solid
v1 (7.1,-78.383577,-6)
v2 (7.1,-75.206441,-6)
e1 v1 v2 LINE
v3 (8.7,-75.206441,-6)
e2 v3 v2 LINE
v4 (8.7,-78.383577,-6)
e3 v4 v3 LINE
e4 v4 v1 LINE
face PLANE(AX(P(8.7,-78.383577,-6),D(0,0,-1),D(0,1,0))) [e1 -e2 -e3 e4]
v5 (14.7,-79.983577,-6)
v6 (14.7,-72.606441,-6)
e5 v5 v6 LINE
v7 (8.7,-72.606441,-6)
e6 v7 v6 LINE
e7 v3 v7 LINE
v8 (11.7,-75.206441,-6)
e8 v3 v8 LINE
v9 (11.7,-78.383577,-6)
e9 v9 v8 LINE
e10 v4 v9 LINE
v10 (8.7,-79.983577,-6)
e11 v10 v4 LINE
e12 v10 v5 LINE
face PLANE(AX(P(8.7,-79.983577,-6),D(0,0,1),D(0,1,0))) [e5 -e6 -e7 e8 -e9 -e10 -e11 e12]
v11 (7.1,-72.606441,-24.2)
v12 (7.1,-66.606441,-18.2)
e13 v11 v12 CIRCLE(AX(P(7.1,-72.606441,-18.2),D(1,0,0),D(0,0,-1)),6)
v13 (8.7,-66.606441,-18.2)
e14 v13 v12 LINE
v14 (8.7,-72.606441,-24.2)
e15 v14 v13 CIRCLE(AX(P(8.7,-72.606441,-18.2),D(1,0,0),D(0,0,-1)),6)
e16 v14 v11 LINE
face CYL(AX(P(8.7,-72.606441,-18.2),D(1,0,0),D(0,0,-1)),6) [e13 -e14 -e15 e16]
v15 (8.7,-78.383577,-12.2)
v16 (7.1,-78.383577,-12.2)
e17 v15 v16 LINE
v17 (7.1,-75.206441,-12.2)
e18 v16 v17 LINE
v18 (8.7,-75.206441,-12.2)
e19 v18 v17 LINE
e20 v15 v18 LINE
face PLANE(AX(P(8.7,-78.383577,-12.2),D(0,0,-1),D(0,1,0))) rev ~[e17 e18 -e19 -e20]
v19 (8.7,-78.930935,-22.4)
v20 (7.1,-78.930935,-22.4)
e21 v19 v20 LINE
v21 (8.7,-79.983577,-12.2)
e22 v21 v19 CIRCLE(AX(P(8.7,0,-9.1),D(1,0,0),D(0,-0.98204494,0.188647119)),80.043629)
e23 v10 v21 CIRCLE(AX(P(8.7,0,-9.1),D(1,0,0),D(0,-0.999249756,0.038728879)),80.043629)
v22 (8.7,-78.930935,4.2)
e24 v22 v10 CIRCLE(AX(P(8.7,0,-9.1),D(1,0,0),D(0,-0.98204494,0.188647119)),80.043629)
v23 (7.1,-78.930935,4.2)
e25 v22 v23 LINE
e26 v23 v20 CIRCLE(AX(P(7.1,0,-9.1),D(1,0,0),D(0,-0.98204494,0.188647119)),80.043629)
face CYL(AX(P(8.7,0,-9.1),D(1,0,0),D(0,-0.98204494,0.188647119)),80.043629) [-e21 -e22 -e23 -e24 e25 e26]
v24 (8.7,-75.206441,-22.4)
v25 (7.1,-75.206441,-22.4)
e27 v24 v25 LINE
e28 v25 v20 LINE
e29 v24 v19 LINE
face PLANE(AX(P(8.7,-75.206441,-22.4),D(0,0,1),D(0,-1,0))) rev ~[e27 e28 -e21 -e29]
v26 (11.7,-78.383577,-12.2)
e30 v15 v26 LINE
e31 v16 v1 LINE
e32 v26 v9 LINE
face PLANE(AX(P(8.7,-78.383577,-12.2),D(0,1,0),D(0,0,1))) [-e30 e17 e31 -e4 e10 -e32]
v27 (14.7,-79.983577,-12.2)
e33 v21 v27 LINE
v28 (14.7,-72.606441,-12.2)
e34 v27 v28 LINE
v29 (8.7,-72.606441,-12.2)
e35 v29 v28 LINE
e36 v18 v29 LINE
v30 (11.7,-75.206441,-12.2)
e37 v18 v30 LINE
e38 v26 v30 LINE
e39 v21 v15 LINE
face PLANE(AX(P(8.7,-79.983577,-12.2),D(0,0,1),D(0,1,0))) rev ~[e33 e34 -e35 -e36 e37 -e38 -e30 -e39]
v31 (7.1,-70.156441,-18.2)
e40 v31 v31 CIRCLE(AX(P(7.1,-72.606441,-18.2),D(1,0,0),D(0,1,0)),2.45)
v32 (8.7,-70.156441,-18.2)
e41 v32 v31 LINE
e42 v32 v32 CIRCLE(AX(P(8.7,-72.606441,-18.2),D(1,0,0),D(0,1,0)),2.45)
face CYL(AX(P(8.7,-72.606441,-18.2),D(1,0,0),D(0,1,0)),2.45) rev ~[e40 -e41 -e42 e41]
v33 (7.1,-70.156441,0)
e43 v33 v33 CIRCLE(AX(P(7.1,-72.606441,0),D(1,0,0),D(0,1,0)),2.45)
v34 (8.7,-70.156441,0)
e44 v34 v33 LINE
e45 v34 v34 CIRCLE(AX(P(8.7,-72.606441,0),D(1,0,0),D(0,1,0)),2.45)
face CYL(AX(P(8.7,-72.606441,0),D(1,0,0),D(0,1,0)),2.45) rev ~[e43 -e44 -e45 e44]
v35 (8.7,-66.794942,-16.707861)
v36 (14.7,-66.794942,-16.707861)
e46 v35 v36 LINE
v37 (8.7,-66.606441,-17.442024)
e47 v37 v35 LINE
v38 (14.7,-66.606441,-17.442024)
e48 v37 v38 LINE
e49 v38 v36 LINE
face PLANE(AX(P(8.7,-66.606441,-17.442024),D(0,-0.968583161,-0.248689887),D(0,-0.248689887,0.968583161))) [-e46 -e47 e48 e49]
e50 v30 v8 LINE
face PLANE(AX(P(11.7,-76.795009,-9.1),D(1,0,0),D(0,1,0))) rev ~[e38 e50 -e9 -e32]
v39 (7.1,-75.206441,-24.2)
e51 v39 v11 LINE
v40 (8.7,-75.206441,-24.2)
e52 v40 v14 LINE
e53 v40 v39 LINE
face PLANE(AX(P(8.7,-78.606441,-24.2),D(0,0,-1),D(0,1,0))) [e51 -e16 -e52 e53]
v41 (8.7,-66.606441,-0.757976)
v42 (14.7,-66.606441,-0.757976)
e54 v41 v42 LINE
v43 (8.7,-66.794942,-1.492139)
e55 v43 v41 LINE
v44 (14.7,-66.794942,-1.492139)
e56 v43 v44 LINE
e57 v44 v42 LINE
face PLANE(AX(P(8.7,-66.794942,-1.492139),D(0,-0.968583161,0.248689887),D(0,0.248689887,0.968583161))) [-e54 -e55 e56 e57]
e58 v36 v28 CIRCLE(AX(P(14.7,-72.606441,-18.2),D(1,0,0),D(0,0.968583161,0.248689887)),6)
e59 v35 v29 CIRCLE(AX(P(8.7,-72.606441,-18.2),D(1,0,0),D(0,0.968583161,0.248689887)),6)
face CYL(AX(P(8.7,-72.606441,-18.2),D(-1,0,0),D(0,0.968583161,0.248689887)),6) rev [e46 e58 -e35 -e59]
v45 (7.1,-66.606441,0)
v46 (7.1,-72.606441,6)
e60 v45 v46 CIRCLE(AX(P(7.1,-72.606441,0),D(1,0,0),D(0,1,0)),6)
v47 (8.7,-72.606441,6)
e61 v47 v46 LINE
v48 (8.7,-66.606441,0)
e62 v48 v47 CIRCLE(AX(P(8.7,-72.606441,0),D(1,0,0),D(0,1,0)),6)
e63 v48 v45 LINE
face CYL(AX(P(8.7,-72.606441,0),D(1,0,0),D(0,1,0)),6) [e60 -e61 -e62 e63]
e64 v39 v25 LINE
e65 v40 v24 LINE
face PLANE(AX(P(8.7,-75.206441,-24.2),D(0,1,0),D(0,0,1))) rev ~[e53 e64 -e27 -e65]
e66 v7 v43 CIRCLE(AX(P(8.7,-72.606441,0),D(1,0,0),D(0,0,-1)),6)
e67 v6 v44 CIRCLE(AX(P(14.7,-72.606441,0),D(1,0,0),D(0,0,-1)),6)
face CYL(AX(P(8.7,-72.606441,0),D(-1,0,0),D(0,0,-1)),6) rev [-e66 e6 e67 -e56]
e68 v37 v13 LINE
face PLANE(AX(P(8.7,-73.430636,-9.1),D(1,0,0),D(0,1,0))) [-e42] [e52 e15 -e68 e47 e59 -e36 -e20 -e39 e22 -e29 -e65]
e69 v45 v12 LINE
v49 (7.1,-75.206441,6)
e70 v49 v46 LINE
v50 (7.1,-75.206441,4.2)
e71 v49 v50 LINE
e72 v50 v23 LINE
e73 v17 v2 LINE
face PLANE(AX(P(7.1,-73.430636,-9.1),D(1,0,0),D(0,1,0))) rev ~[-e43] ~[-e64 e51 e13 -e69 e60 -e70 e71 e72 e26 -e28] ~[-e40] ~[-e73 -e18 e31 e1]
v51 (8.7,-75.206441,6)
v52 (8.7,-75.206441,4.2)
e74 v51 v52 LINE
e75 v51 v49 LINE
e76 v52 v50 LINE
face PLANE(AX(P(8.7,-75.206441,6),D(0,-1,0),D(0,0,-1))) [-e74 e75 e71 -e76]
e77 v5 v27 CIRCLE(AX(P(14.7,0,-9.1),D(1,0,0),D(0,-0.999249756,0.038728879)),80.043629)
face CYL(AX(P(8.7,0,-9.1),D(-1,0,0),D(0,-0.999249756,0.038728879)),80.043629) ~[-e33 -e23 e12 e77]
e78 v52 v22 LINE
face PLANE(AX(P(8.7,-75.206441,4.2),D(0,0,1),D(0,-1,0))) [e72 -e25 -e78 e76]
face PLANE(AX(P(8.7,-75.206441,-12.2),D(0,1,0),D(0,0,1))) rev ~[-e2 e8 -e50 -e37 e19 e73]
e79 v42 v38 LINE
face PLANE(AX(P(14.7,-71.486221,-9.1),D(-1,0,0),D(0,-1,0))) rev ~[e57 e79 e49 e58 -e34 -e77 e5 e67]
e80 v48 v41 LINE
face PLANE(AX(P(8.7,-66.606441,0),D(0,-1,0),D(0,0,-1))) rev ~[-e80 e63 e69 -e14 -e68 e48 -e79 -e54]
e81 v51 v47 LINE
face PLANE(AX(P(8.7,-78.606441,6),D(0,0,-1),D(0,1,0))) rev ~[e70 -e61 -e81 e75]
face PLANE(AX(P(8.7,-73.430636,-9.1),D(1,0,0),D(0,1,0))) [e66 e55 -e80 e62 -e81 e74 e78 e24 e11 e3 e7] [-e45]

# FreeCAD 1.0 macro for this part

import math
import FreeCAD as App
import Part
import Sketcher
Q = App.Units.Quantity


def add_polygon(sketch, points):
    """Adds a closed chain of lines whose ends are joined by coincident constraints."""
    first, n = sketch.GeometryCount, len(points)
    for a, b in zip(points, points[1:] + points[:1]):
        sketch.addGeometry(Part.LineSegment(App.Vector(*a, 0), App.Vector(*b, 0)), False)
    for i in range(n):
        sketch.addConstraint(Sketcher.Constraint("Coincident", first + i, 2, first + (i + 1) % n, 1))

doc = App.newDocument("Part")
body = doc.addObject("PartDesign::Body", "Body")

sketch1 = doc.addObject("Sketcher::SketchObject", "Sketch")
body.addObject(sketch1)
sketch1.AttachmentSupport = (doc.YZ_Plane, [""])
sketch1.MapMode = "FlatFace"
sketch1.AttachmentOffset = App.Placement(App.Vector(0, 0, 8.7), App.Rotation())
sketch1.addGeometry(Part.ArcOfCircle(Part.Circle(App.Vector(72.6, -9.1, 0), App.Vector(0, 0, 1), 80), math.radians(169), math.radians(191)), False)
sketch1.addGeometry(Part.LineSegment(App.Vector(-6, -24.2, 0), App.Vector(0, -24.2, 0)), False)
sketch1.addGeometry(Part.ArcOfCircle(Part.Circle(App.Vector(0, -18.2, 0), App.Vector(0, 0, 1), 6), math.radians(-90), math.radians(0)), False)
sketch1.addGeometry(Part.LineSegment(App.Vector(6, -18.2, 0), App.Vector(6, 0, 0)), False)
sketch1.addGeometry(Part.ArcOfCircle(Part.Circle(App.Vector(0, 0, 0), App.Vector(0, 0, 1), 6), math.radians(0), math.radians(90)), False)
sketch1.addGeometry(Part.LineSegment(App.Vector(0, 6, 0), App.Vector(-6, 6, 0)), False)
sketch1.addGeometry(Part.Circle(App.Vector(0, -18.2, 0), App.Vector(0, 0, 1), 2.5), False)
sketch1.addGeometry(Part.Circle(App.Vector(0, 0, 0), App.Vector(0, 0, 1), 2.5), False)
sketch1.addConstraint(Sketcher.Constraint("Coincident", 0, 2, 1, 1))
sketch1.addConstraint(Sketcher.Constraint("Tangent", 1, 2, 2, 1))
sketch1.addConstraint(Sketcher.Constraint("Tangent", 2, 2, 3, 1))
sketch1.addConstraint(Sketcher.Constraint("Tangent", 3, 2, 4, 1))
sketch1.addConstraint(Sketcher.Constraint("Tangent", 4, 2, 5, 1))
sketch1.addConstraint(Sketcher.Constraint("Coincident", 5, 2, 0, 1))
sketch1.addConstraint(Sketcher.Constraint("Horizontal", 1))
sketch1.addConstraint(Sketcher.Constraint("Vertical", 3))
sketch1.addConstraint(Sketcher.Constraint("Horizontal", 5))
sketch1.addConstraint(Sketcher.Constraint("Coincident", 4, 3, -1, 1))
sketch1.addConstraint(Sketcher.Constraint("Coincident", 7, 3, -1, 1))
sketch1.addConstraint(Sketcher.Constraint("Coincident", 6, 3, 2, 3))
sketch1.addConstraint(Sketcher.Constraint("Equal", 2, 4))
sketch1.addConstraint(Sketcher.Constraint("Equal", 6, 7))
sketch1.addConstraint(Sketcher.Constraint("Vertical", 0, 2, 5, 2))
sketch1.addConstraint(Sketcher.Constraint("Radius", 2, 6.0))
sketch1.addConstraint(Sketcher.Constraint("Diameter", 6, 4.9))
sketch1.addConstraint(Sketcher.Constraint("DistanceX", 1, 1, 1, 2, 6.0))
sketch1.addConstraint(Sketcher.Constraint("DistanceY", 3, 1, 3, 2, 18.2))
sketch1.addConstraint(Sketcher.Constraint("Radius", 0, 80.043629))
pad1 = doc.addObject("PartDesign::Pad", "Pad")
body.addObject(pad1)
pad1.Profile = sketch1
pad1.Length = 1.6
pad1.Reversed = True

sketch2 = doc.addObject("Sketcher::SketchObject", "Sketch001")
body.addObject(sketch2)
sketch2.AttachmentSupport = (doc.YZ_Plane, [""])
sketch2.MapMode = "FlatFace"
sketch2.AttachmentOffset = App.Placement(App.Vector(0, 0, 8.7), App.Rotation())
sketch2.addGeometry(Part.ArcOfCircle(Part.Circle(App.Vector(0, -18.2, 0), App.Vector(0, 0, 1), 6), math.radians(14), math.radians(90)), False)
sketch2.addGeometry(Part.LineSegment(App.Vector(5.8, -16.7, 0), App.Vector(6, -17.4, 0)), False)
sketch2.addGeometry(Part.LineSegment(App.Vector(6, -17.4, 0), App.Vector(6, -0.8, 0)), False)
sketch2.addGeometry(Part.LineSegment(App.Vector(6, -0.8, 0), App.Vector(5.8, -1.5, 0)), False)
sketch2.addGeometry(Part.ArcOfCircle(Part.Circle(App.Vector(0, 0, 0), App.Vector(0, 0, 1), 6), math.radians(-90), math.radians(-14)), False)
sketch2.addGeometry(Part.LineSegment(App.Vector(0, -6, 0), App.Vector(-7.4, -6, 0)), False)
sketch2.addGeometry(Part.ArcOfCircle(Part.Circle(App.Vector(72.6, -9.1, 0), App.Vector(0, 0, 1), 80), math.radians(177.78), math.radians(182.22)), False)
sketch2.addGeometry(Part.LineSegment(App.Vector(-7.4, -12.2, 0), App.Vector(0, -12.2, 0)), False)
sketch2.addConstraint(Sketcher.Constraint("Tangent", 0, 1, 1, 1))
sketch2.addConstraint(Sketcher.Constraint("Coincident", 1, 2, 2, 1))
sketch2.addConstraint(Sketcher.Constraint("Coincident", 2, 2, 3, 1))
sketch2.addConstraint(Sketcher.Constraint("Tangent", 3, 2, 4, 2))
sketch2.addConstraint(Sketcher.Constraint("Tangent", 4, 1, 5, 1))
sketch2.addConstraint(Sketcher.Constraint("Coincident", 5, 2, 6, 1))
sketch2.addConstraint(Sketcher.Constraint("Coincident", 6, 2, 7, 1))
sketch2.addConstraint(Sketcher.Constraint("Tangent", 7, 2, 0, 2))
sketch2.addConstraint(Sketcher.Constraint("Vertical", 2))
sketch2.addConstraint(Sketcher.Constraint("Horizontal", 5))
sketch2.addConstraint(Sketcher.Constraint("Horizontal", 7))
sketch2.addConstraint(Sketcher.Constraint("Coincident", 4, 3, -1, 1))
sketch2.addConstraint(Sketcher.Constraint("Equal", 0, 4))
sketch2.addConstraint(Sketcher.Constraint("PointOnObject", 0, 3, -2))
sketch2.addConstraint(Sketcher.Constraint("Vertical", 0, 1, 3, 2))
sketch2.addConstraint(Sketcher.Constraint("Vertical", 5, 2, 6, 2))
sketch2.addConstraint(Sketcher.Constraint("Radius", 0, 6.0))
sketch2.addConstraint(Sketcher.Constraint("DistanceX", -1, 1, 1, 2, 6.0))
sketch2.addConstraint(Sketcher.Constraint("Angle", 1, Q("-75.6 deg")))
sketch2.addConstraint(Sketcher.Constraint("DistanceY", 0, 3, -1, 1, 18.2))
sketch2.addConstraint(Sketcher.Constraint("Radius", 6, 80.043629))
sketch2.addConstraint(Sketcher.Constraint("DistanceX", 5, 2, 5, 1, 7.377136))
pad2 = doc.addObject("PartDesign::Pad", "Pad001")
body.addObject(pad2)
pad2.Profile = sketch2
pad2.Length = 6

sketch3 = doc.addObject("Sketcher::SketchObject", "Sketch002")
body.addObject(sketch3)
sketch3.AttachmentSupport = (doc.YZ_Plane, [""])
sketch3.MapMode = "FlatFace"
sketch3.AttachmentOffset = App.Placement(App.Vector(0, 0, 8.7), App.Rotation())
sketch3.addGeometry(Part.LineSegment(App.Vector(-2.6, 6, 0), App.Vector(-6, 6, 0)), False)
sketch3.addGeometry(Part.ArcOfCircle(Part.Circle(App.Vector(72.6, -9.1, 0), App.Vector(0, 0, 1), 80), math.radians(169.13), math.radians(170.44)), False)
sketch3.addGeometry(Part.LineSegment(App.Vector(-6.3, 4.2, 0), App.Vector(-2.6, 4.2, 0)), False)
sketch3.addGeometry(Part.LineSegment(App.Vector(-2.6, 4.2, 0), App.Vector(-2.6, 6, 0)), False)
sketch3.addGeometry(Part.LineSegment(App.Vector(-6, -24.2, 0), App.Vector(-2.6, -24.2, 0)), False)
sketch3.addGeometry(Part.LineSegment(App.Vector(-2.6, -24.2, 0), App.Vector(-2.6, -22.4, 0)), False)
sketch3.addGeometry(Part.LineSegment(App.Vector(-2.6, -22.4, 0), App.Vector(-6.3, -22.4, 0)), False)
sketch3.addGeometry(Part.ArcOfCircle(Part.Circle(App.Vector(72.6, -9.1, 0), App.Vector(0, 0, 1), 80), math.radians(-170.44), math.radians(-169.13)), False)
add_polygon(sketch3, [(-5.8, -6), (-5.8, -12.2), (-2.6, -12.2), (-2.6, -6)])
sketch3.addConstraint(Sketcher.Constraint("Coincident", 0, 2, 1, 1))
sketch3.addConstraint(Sketcher.Constraint("Coincident", 1, 2, 2, 1))
sketch3.addConstraint(Sketcher.Constraint("Coincident", 2, 2, 3, 1))
sketch3.addConstraint(Sketcher.Constraint("Coincident", 3, 2, 0, 1))
sketch3.addConstraint(Sketcher.Constraint("Coincident", 4, 2, 5, 1))
sketch3.addConstraint(Sketcher.Constraint("Coincident", 5, 2, 6, 1))
sketch3.addConstraint(Sketcher.Constraint("Coincident", 6, 2, 7, 1))
sketch3.addConstraint(Sketcher.Constraint("Coincident", 7, 2, 4, 1))
sketch3.addConstraint(Sketcher.Constraint("Horizontal", 0))
sketch3.addConstraint(Sketcher.Constraint("Horizontal", 2))
sketch3.addConstraint(Sketcher.Constraint("Vertical", 3))
sketch3.addConstraint(Sketcher.Constraint("Horizontal", 4))
sketch3.addConstraint(Sketcher.Constraint("Vertical", 5))
sketch3.addConstraint(Sketcher.Constraint("Horizontal", 6))
sketch3.addConstraint(Sketcher.Constraint("Vertical", 8))
sketch3.addConstraint(Sketcher.Constraint("Horizontal", 9))
sketch3.addConstraint(Sketcher.Constraint("Vertical", 10))
sketch3.addConstraint(Sketcher.Constraint("Horizontal", 11))
sketch3.addConstraint(Sketcher.Constraint("Coincident", 7, 3, 1, 3))
sketch3.addConstraint(Sketcher.Constraint("Equal", 1, 7))
sketch3.addConstraint(Sketcher.Constraint("Symmetric", 3, 2, 10, 2, -1))
sketch3.addConstraint(Sketcher.Constraint("Vertical", 3, 2, 4, 2))
sketch3.addConstraint(Sketcher.Constraint("Vertical", 1, 2, 6, 2))
sketch3.addConstraint(Sketcher.Constraint("Vertical", 0, 2, 7, 2))
sketch3.addConstraint(Sketcher.Constraint("DistanceX", 0, 2, 0, 1, 3.4))
sketch3.addConstraint(Sketcher.Constraint("DistanceY", 3, 1, 3, 2, 1.8))
sketch3.addConstraint(Sketcher.Constraint("DistanceY", 8, 2, 8, 1, 6.2))
sketch3.addConstraint(Sketcher.Constraint("DistanceX", 0, 2, -1, 1, 6.0))
sketch3.addConstraint(Sketcher.Constraint("DistanceY", -1, 1, 0, 2, 6.0))
sketch3.addConstraint(Sketcher.Constraint("DistanceY", 7, 2, 8, 2, 12.0))
sketch3.addConstraint(Sketcher.Constraint("Radius", 1, 80.043628))
sketch3.addConstraint(Sketcher.Constraint("DistanceX", 9, 1, 9, 2, 3.177136))
pocket1 = doc.addObject("PartDesign::Pocket", "Pocket")
body.addObject(pocket1)
pocket1.Profile = sketch3
pocket1.Type = "TwoLengths"
pocket1.Length = 1.6
pocket1.Length2 = 3
body2 = doc.addObject("PartDesign::Body", "Body001")
doc.recompute()

body.Placement = App.Placement(App.Vector(0, -72.606441, 0), App.Rotation(App.Vector(0, 0, 1), 0))
boolean = doc.addObject("PartDesign::Boolean", "Boolean")
body2.addObject(boolean)
boolean.Type = "Fuse"
boolean.addObjects([body])

doc.recompute()
